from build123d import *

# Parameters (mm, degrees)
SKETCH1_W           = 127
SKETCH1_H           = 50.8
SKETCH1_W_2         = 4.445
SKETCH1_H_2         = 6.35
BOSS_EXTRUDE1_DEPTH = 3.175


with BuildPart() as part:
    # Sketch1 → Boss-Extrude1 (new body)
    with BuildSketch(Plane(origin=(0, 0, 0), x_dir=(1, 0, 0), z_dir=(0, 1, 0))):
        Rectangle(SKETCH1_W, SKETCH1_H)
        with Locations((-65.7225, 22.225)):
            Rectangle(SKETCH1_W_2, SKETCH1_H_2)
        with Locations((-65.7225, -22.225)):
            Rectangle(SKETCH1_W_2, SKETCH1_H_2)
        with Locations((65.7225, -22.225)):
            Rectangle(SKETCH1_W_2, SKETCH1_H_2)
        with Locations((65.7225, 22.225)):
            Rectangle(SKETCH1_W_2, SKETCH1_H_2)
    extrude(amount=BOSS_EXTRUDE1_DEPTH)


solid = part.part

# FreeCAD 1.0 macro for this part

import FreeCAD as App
import Part
import Sketcher

V = App.Vector
Q = App.Units.Quantity

doc = App.newDocument("Part")
body = doc.addObject("PartDesign::Body", "Body")

# Sketch on XZ plane
sketch1 = body.newObject("Sketcher::SketchObject", "Sketch")
sketch1.AttachmentSupport = (doc.getObject("XZ_Plane"), [""])
sketch1.MapMode = "FlatFace"
sketch1.addGeometry([
    Part.LineSegment(V(-63.5, -19.1, 0), V(-63.5, 19.1, 0)),  # 0
    Part.LineSegment(V(-63.5, 19.1, 0), V(-67.9, 19.1, 0)),  # 1
    Part.LineSegment(V(-67.9, 19.1, 0), V(-67.9, 25.4, 0)),  # 2
    Part.LineSegment(V(-67.9, 25.4, 0), V(67.9, 25.4, 0)),  # 3
    Part.LineSegment(V(67.9, 25.4, 0), V(67.9, 19.1, 0)),  # 4
    Part.LineSegment(V(67.9, 19.1, 0), V(63.5, 19.1, 0)),  # 5
    Part.LineSegment(V(63.5, 19.1, 0), V(63.5, -19.1, 0)),  # 6
    Part.LineSegment(V(63.5, -19.1, 0), V(67.9, -19.1, 0)),  # 7
    Part.LineSegment(V(67.9, -19.1, 0), V(67.9, -25.4, 0)),  # 8
    Part.LineSegment(V(67.9, -25.4, 0), V(-67.9, -25.4, 0)),  # 9
    Part.LineSegment(V(-67.9, -25.4, 0), V(-67.9, -19.1, 0)),  # 10
    Part.LineSegment(V(-67.9, -19.1, 0), V(-63.5, -19.1, 0)),  # 11
], False)
sketch1.addConstraint([
    Sketcher.Constraint("Coincident", 0, 2, 1, 1),
    Sketcher.Constraint("Coincident", 1, 2, 2, 1),
    Sketcher.Constraint("Coincident", 2, 2, 3, 1),
    Sketcher.Constraint("Coincident", 3, 2, 4, 1),
    Sketcher.Constraint("Coincident", 4, 2, 5, 1),
    Sketcher.Constraint("Coincident", 5, 2, 6, 1),
    Sketcher.Constraint("Coincident", 6, 2, 7, 1),
    Sketcher.Constraint("Coincident", 7, 2, 8, 1),
    Sketcher.Constraint("Coincident", 8, 2, 9, 1),
    Sketcher.Constraint("Coincident", 9, 2, 10, 1),
    Sketcher.Constraint("Coincident", 10, 2, 11, 1),
    Sketcher.Constraint("Coincident", 11, 2, 0, 1),
    Sketcher.Constraint("Vertical", 0),
    Sketcher.Constraint("Horizontal", 1),
    Sketcher.Constraint("Vertical", 2),
    Sketcher.Constraint("Horizontal", 3),
    Sketcher.Constraint("Vertical", 4),
    Sketcher.Constraint("Horizontal", 5),
    Sketcher.Constraint("Vertical", 6),
    Sketcher.Constraint("Horizontal", 7),
    Sketcher.Constraint("Vertical", 8),
    Sketcher.Constraint("Horizontal", 9),
    Sketcher.Constraint("Vertical", 10),
    Sketcher.Constraint("Horizontal", 11),
    Sketcher.Constraint("Symmetric", 0, 2, 6, 2, -1, 1),
    Sketcher.Constraint("Symmetric", 2, 2, 8, 2, -1, 1),
    Sketcher.Constraint("Symmetric", 4, 2, 10, 2, -1, 1),
    Sketcher.Constraint("Symmetric", 1, 2, 4, 2, -2),
    Sketcher.Constraint("DistanceY", 0, 1, 0, 2, Q("1.5 in")),
    Sketcher.Constraint("DistanceY", -1, 1, 2, 2, Q("1 in")),
    Sketcher.Constraint("DistanceX", 0, 2, 5, 2, Q("5 in")),
    Sketcher.Constraint("DistanceX", 3, 1, 3, 2, Q("5.35 in")),
])
pad1 = body.newObject("PartDesign::Pad", "Pad")
pad1.Profile = sketch1
pad1.Length = Q("0.125 in")
pad1.Reversed = True

doc.recompute()
